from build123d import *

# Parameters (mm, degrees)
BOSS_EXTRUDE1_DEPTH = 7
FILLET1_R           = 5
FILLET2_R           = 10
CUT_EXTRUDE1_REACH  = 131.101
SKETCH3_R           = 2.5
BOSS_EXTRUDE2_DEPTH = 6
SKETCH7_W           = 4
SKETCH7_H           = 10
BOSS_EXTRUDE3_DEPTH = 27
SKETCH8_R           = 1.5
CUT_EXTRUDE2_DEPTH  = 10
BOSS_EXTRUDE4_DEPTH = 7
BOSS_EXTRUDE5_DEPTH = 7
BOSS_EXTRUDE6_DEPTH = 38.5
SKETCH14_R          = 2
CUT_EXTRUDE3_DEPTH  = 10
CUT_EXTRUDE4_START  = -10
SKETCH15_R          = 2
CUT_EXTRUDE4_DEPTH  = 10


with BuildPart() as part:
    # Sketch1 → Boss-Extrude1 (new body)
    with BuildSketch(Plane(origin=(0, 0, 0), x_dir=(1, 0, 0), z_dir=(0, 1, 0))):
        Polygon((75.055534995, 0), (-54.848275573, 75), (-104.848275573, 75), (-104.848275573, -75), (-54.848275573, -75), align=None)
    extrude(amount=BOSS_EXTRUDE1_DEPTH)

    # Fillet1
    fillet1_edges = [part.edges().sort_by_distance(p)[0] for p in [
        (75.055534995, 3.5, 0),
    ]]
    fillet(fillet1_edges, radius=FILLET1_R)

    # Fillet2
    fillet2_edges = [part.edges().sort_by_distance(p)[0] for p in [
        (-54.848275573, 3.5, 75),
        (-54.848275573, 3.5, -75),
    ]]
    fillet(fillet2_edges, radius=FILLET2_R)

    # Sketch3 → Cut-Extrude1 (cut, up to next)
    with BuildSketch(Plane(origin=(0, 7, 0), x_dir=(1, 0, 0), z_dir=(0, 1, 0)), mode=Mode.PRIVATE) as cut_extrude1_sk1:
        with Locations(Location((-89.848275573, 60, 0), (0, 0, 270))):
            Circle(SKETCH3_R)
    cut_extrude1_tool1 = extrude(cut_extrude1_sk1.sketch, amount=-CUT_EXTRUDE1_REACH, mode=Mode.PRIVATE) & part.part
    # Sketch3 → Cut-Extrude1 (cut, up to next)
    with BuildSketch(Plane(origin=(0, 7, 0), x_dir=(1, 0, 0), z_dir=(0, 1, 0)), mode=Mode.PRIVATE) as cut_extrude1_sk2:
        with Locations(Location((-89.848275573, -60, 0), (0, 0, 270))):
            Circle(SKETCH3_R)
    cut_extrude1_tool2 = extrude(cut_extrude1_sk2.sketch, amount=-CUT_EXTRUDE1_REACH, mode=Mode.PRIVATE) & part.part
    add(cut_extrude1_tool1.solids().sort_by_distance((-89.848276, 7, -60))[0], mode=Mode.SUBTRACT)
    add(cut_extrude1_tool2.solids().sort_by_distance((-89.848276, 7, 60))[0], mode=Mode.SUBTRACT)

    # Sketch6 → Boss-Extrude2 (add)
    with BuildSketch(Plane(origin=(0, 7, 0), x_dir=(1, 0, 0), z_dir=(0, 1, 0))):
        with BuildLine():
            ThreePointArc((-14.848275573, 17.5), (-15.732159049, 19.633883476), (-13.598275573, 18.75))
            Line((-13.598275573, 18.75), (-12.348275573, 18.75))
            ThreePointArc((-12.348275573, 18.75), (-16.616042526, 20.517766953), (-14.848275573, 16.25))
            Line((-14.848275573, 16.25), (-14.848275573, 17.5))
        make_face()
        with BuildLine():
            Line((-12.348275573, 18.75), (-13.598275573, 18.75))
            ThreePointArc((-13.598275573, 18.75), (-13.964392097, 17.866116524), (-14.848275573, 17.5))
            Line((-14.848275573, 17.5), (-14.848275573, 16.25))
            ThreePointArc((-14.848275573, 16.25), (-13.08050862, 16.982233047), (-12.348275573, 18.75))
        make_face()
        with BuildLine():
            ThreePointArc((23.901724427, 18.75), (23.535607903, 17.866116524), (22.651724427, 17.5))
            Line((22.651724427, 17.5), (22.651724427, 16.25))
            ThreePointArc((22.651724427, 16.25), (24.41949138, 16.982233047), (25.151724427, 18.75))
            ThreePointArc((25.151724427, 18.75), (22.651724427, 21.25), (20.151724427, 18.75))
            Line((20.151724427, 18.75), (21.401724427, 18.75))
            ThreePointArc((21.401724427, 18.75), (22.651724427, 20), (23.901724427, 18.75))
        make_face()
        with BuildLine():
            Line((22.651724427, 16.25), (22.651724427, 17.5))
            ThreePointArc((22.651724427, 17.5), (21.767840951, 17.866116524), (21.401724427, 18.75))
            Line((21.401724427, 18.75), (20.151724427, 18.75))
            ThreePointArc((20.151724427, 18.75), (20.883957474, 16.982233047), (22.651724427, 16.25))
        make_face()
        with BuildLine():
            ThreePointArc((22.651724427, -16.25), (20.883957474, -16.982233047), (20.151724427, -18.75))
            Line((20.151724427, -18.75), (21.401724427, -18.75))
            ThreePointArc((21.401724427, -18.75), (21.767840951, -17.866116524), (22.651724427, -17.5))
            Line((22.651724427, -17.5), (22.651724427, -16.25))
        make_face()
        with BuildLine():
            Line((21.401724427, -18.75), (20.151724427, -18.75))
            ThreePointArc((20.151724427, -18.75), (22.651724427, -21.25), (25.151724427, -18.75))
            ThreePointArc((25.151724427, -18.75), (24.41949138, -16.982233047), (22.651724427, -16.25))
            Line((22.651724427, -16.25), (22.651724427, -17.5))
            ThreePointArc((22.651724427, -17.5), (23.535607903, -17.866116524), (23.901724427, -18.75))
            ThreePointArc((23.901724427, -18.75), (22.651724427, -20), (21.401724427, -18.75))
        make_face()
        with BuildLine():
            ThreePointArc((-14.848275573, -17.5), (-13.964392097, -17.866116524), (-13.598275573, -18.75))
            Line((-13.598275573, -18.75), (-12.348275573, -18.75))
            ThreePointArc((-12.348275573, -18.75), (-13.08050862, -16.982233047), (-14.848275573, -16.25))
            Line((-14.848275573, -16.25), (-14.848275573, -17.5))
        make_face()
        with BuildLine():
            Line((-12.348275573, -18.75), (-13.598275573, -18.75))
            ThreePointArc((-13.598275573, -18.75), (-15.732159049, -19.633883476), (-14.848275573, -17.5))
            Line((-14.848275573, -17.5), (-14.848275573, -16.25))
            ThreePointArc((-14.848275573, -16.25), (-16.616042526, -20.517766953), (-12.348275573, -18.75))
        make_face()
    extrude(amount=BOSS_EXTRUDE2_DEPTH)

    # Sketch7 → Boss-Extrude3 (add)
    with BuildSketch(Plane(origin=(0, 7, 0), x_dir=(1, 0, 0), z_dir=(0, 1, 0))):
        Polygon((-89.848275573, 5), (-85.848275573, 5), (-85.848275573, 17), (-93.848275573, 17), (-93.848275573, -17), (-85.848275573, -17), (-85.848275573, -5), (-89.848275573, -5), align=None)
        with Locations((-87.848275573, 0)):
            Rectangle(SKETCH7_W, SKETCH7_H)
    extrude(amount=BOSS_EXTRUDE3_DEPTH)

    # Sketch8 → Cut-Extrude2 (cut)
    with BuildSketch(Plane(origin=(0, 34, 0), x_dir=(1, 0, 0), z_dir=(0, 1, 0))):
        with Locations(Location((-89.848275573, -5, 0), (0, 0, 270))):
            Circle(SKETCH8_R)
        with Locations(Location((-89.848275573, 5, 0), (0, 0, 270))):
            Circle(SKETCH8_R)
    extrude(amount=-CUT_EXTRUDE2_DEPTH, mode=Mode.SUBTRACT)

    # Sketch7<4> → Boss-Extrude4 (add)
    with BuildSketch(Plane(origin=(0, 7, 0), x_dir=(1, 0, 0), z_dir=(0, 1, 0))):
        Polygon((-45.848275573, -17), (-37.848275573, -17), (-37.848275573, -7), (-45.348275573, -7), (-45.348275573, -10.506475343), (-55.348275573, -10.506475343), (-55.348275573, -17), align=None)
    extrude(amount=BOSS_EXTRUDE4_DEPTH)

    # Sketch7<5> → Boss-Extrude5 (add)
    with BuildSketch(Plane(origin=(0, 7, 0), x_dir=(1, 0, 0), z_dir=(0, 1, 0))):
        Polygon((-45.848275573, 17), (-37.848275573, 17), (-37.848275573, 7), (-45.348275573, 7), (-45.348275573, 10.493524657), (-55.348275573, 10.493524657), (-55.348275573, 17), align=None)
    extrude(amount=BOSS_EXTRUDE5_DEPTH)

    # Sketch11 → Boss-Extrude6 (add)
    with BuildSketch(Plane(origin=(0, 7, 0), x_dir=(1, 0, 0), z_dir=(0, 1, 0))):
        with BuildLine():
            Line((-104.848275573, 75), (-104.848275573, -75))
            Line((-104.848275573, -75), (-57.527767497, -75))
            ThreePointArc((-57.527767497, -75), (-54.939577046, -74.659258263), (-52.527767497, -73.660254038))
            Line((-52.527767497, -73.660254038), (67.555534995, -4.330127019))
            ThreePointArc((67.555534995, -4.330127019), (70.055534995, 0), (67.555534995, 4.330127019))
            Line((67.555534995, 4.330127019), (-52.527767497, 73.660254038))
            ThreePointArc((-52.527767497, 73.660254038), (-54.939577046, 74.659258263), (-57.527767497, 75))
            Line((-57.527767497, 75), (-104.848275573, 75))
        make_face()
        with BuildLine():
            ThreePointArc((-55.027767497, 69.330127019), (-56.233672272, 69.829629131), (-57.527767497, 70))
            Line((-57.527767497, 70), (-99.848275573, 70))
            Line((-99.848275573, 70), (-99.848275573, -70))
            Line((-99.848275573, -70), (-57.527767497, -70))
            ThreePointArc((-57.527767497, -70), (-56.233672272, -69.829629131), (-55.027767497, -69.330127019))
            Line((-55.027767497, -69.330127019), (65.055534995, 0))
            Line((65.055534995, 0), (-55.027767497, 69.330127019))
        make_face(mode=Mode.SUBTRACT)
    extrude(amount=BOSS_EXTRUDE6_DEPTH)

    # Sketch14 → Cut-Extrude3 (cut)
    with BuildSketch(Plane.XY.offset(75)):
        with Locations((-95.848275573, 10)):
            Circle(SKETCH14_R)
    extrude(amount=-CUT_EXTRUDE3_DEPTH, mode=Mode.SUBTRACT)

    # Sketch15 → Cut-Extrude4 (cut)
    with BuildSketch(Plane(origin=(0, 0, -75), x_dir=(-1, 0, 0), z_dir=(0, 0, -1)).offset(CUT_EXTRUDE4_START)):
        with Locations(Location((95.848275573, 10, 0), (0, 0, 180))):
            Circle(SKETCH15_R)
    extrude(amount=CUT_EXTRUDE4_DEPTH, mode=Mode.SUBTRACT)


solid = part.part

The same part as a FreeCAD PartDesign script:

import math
import FreeCAD as App
import Part
import Sketcher
from FreeCAD import Vector
Q = App.Units.Quantity


def edges_at(feature, points):
    """Names of the edges that pass closest to the given points."""
    edges = feature.Shape.Edges
    near = lambda p: min(range(len(edges)), key=lambda i: edges[i].distToShape(Part.Vertex(*p))[0])
    return sorted({f"Edge{near(p) + 1}" for p in points})

doc = App.newDocument("Part")
body = doc.addObject("PartDesign::Body", "Body")

# Sketch on XZ plane
sketch1 = body.newObject("Sketcher::SketchObject", "Sketch")
sketch1.AttachmentSupport = (doc.getObject("XZ_Plane"), [""])
sketch1.MapMode = "FlatFace"
sketch1.addGeometry([
    Part.LineSegment(Vector(75, 0, 0), Vector(-55, -75, 0)),  # 0
    Part.LineSegment(Vector(-55, -75, 0), Vector(-105, -75, 0)),  # 1
    Part.LineSegment(Vector(-105, -75, 0), Vector(-105, 75, 0)),  # 2
    Part.LineSegment(Vector(-105, 75, 0), Vector(-55, 75, 0)),  # 3
    Part.LineSegment(Vector(-55, 75, 0), Vector(75, 0, 0)),  # 4
], False)
sketch1.addConstraint([
    Sketcher.Constraint("Coincident", 0, 2, 1, 1),
    Sketcher.Constraint("Coincident", 1, 2, 2, 1),
    Sketcher.Constraint("Coincident", 2, 2, 3, 1),
    Sketcher.Constraint("Coincident", 3, 2, 4, 1),
    Sketcher.Constraint("Coincident", 4, 2, 0, 1),
    Sketcher.Constraint("Horizontal", 1),
    Sketcher.Constraint("Vertical", 2),
    Sketcher.Constraint("Horizontal", 3),
    Sketcher.Constraint("Symmetric", 0, 2, 3, 2, -1),
    Sketcher.Constraint("PointOnObject", 4, 2, -1),
    Sketcher.Constraint("DistanceX", 1, 2, 1, 1, Q("50 mm")),
    Sketcher.Constraint("DistanceY", 2, 1, 2, 2, Q("150 mm")),
    Sketcher.Constraint("Angle", 0, Q("-150 deg")),
    Sketcher.Constraint("DistanceX", 0, 2, -1, 1, Q("54.848276 mm")),
])
pad1 = body.newObject("PartDesign::Pad", "Pad")
pad1.Profile = sketch1
pad1.Length = 7
pad1.Reversed = True
doc.recompute()

fillet = body.newObject("PartDesign::Fillet", "Fillet")
fillet.Base = (pad1, edges_at(pad1, [(75.056, 3.5, 0)]))
fillet.Radius = 5
doc.recompute()

fillet2 = body.newObject("PartDesign::Fillet", "Fillet001")
fillet2.Base = (fillet, edges_at(fillet, [(-54.848, 3.5, 75), (-54.848, 3.5, -75)]))
fillet2.Radius = 10

# Sketch on XZ plane
sketch2 = body.newObject("Sketcher::SketchObject", "Sketch001")
sketch2.AttachmentSupport = (doc.getObject("XZ_Plane"), [""])
sketch2.MapMode = "FlatFace"
sketch2.AttachmentOffset = App.Placement(Vector(0, 0, -7), App.Rotation())
sketch2.addGeometry(Part.Circle(Vector(-89.8, -60, 0), Vector(0, 0, 1), 2.5), False)
sketch2.addConstraint([
    Sketcher.Constraint("Diameter", 0, Q("5 mm")),
    Sketcher.Constraint("DistanceY", 0, 3, -1, 1, Q("60 mm")),
    Sketcher.Constraint("DistanceX", 0, 3, -1, 1, Q("89.848276 mm")),
])
pocket1 = body.newObject("PartDesign::Pocket", "Pocket")
pocket1.Profile = sketch2
pocket1.Type = "UpToFirst"
pocket1.Reversed = True

# Sketch on XZ plane
sketch3 = body.newObject("Sketcher::SketchObject", "Sketch002")
sketch3.AttachmentSupport = (doc.getObject("XZ_Plane"), [""])
sketch3.MapMode = "FlatFace"
sketch3.AttachmentOffset = App.Placement(Vector(0, 0, -7), App.Rotation())
sketch3.addGeometry(Part.Circle(Vector(-89.8, 60, 0), Vector(0, 0, 1), 2.5), False)
sketch3.addConstraint([
    Sketcher.Constraint("Diameter", 0, Q("5 mm")),
    Sketcher.Constraint("DistanceY", -1, 1, 0, 3, Q("60 mm")),
    Sketcher.Constraint("DistanceX", 0, 3, -1, 1, Q("89.848276 mm")),
])
pocket2 = body.newObject("PartDesign::Pocket", "Pocket001")
pocket2.Profile = sketch3
pocket2.Type = "UpToFirst"
pocket2.Reversed = True

# Sketch on XZ plane
sketch4 = body.newObject("Sketcher::SketchObject", "Sketch003")
sketch4.AttachmentSupport = (doc.getObject("XZ_Plane"), [""])
sketch4.MapMode = "FlatFace"
sketch4.AttachmentOffset = App.Placement(Vector(0, 0, -7), App.Rotation())
sketch4.addGeometry([
    Part.ArcOfCircle(Part.Circle(Vector(-14.8, -18.8, 0), Vector(0, 0, 1), 2.5), math.radians(90), math.radians(360)),  # 0
    Part.ArcOfCircle(Part.Circle(Vector(-14.8, -18.8, 0), Vector(0, 0, 1), 2.5), math.radians(0), math.radians(90)),  # 1
    Part.ArcOfCircle(Part.Circle(Vector(-14.8, -18.8, 0), Vector(0, 0, 1), 1.2), math.radians(90), math.radians(360)),  # 2
    Part.ArcOfCircle(Part.Circle(Vector(-14.8, -18.8, 0), Vector(0, 0, 1), 1.3), math.radians(0), math.radians(90)),  # 3
    Part.ArcOfCircle(Part.Circle(Vector(22.7, -18.8, 0), Vector(0, 0, 1), 2.5), math.radians(180), math.radians(360)),  # 4
    Part.ArcOfCircle(Part.Circle(Vector(22.7, -18.8, 0), Vector(0, 0, 1), 2.5), math.radians(90), math.radians(180)),  # 5
    Part.ArcOfCircle(Part.Circle(Vector(22.7, -18.8, 0), Vector(0, 0, 1), 2.5), math.radians(0), math.radians(90)),  # 6
    Part.ArcOfCircle(Part.Circle(Vector(22.7, -18.8, 0), Vector(0, 0, 1), 1.3), math.radians(0), math.radians(90)),  # 7
    Part.ArcOfCircle(Part.Circle(Vector(22.7, -18.8, 0), Vector(0, 0, 1), 1.3), math.radians(90), math.radians(180)),  # 8
    Part.ArcOfCircle(Part.Circle(Vector(22.7, -18.8, 0), Vector(0, 0, 1), 1.2), math.radians(180), math.radians(360)),  # 9
    Part.ArcOfCircle(Part.Circle(Vector(22.7, 18.8, 0), Vector(0, 0, 1), 2.5), math.radians(180), math.radians(270)),  # 10
    Part.ArcOfCircle(Part.Circle(Vector(22.7, 18.8, 0), Vector(0, 0, 1), 2.5), math.radians(0), math.radians(180)),  # 11
    Part.ArcOfCircle(Part.Circle(Vector(22.7, 18.8, 0), Vector(0, 0, 1), 2.5), math.radians(-90), math.radians(0)),  # 12
    Part.ArcOfCircle(Part.Circle(Vector(22.7, 18.8, 0), Vector(0, 0, 1), 1.3), math.radians(-180), math.radians(-90)),  # 13
    Part.ArcOfCircle(Part.Circle(Vector(22.7, 18.8, 0), Vector(0, 0, 1), 1.3), math.radians(-90), math.radians(0)),  # 14
    Part.ArcOfCircle(Part.Circle(Vector(22.7, 18.8, 0), Vector(0, 0, 1), 1.2), math.radians(0), math.radians(180)),  # 15
    Part.ArcOfCircle(Part.Circle(Vector(-14.8, 18.8, 0), Vector(0, 0, 1), 2.5), math.radians(-90), math.radians(0)),  # 16
    Part.ArcOfCircle(Part.Circle(Vector(-14.8, 18.8, 0), Vector(0, 0, 1), 2.5), math.radians(0), math.radians(270)),  # 17
    Part.ArcOfCircle(Part.Circle(Vector(-14.8, 18.8, 0), Vector(0, 0, 1), 1.3), math.radians(-90), math.radians(0)),  # 18
    Part.ArcOfCircle(Part.Circle(Vector(-14.8, 18.8, 0), Vector(0, 0, 1), 1.2), math.radians(0), math.radians(270)),  # 19
], False)
sketch4.addConstraint([
    Sketcher.Constraint("Tangent", 0, 1, 1, 2),
    Sketcher.Constraint("Coincident", 1, 1, 0, 2),
    Sketcher.Constraint("Tangent", 2, 1, 3, 2),
    Sketcher.Constraint("Coincident", 3, 1, 2, 2),
    Sketcher.Constraint("Tangent", 4, 1, 5, 2),
    Sketcher.Constraint("Tangent", 5, 1, 6, 2),
    Sketcher.Constraint("Tangent", 6, 1, 4, 2),
    Sketcher.Constraint("Tangent", 7, 2, 8, 1),
    Sketcher.Constraint("Tangent", 8, 2, 9, 1),
    Sketcher.Constraint("Tangent", 9, 2, 7, 1),
    Sketcher.Constraint("Tangent", 10, 1, 11, 2),
    Sketcher.Constraint("Tangent", 11, 1, 12, 2),
    Sketcher.Constraint("Tangent", 12, 1, 10, 2),
    Sketcher.Constraint("Tangent", 13, 2, 14, 1),
    Sketcher.Constraint("Tangent", 14, 2, 15, 1),
    Sketcher.Constraint("Tangent", 15, 2, 13, 1),
    Sketcher.Constraint("Tangent", 16, 1, 17, 2),
    Sketcher.Constraint("Coincident", 17, 1, 16, 2),
    Sketcher.Constraint("Tangent", 18, 1, 19, 2),
    Sketcher.Constraint("Coincident", 19, 1, 18, 2),
    Sketcher.Constraint("Coincident", 2, 3, 0, 3),
    Sketcher.Constraint("Coincident", 7, 3, 4, 3),
    Sketcher.Constraint("Coincident", 13, 3, 10, 3),
    Sketcher.Constraint("Coincident", 18, 3, 16, 3),
    Sketcher.Constraint("Equal", 1, 4),
    Sketcher.Constraint("Equal", 3, 7),
    Sketcher.Constraint("Equal", 6, 10),
    Sketcher.Constraint("Equal", 9, 13),
    Sketcher.Constraint("Equal", 12, 16),
    Sketcher.Constraint("Equal", 15, 18),
    Sketcher.Constraint("Symmetric", 4, 3, 10, 3, -1),
    Sketcher.Constraint("Symmetric", 0, 3, 16, 3, -1),
    Sketcher.Constraint("Horizontal", 3, 3, 4, 3),
    Sketcher.Constraint("Horizontal", 9, 3, 1, 1),
    Sketcher.Constraint("Horizontal", 1, 1, 3, 1),
    Sketcher.Constraint("Horizontal", 3, 1, 4, 1),
    Sketcher.Constraint("Horizontal", 4, 1, 6, 1),
    Sketcher.Constraint("Horizontal", 6, 1, 8, 2),
    Sketcher.Constraint("Horizontal", 8, 2, 9, 2),
    Sketcher.Constraint("Horizontal", 19, 3, 10, 1),
    Sketcher.Constraint("Horizontal", 10, 1, 11, 1),
    Sketcher.Constraint("Horizontal", 11, 1, 14, 2),
    Sketcher.Constraint("Horizontal", 14, 2, 15, 2),
    Sketcher.Constraint("Horizontal", 15, 2, 17, 1),
    Sketcher.Constraint("Horizontal", 17, 1, 19, 1),
    Sketcher.Constraint("Vertical", 19, 3, 0, 1),
    Sketcher.Constraint("Vertical", 0, 1, 2, 1),
    Sketcher.Constraint("Vertical", 15, 3, 5, 1),
    Sketcher.Constraint("Vertical", 5, 1, 7, 2),
    Sketcher.Constraint("Vertical", 7, 2, 12, 1),
    Sketcher.Constraint("Vertical", 12, 1, 13, 2),
    Sketcher.Constraint("Vertical", 2, 1, 16, 1),
    Sketcher.Constraint("Vertical", 16, 1, 18, 1),
    Sketcher.Constraint("Radius", 0, Q("2.5 mm")),
    Sketcher.Constraint("Radius", 2, Q("1.25 mm")),
    Sketcher.Constraint("DistanceY", 0, 1, 16, 3, Q("35 mm")),
    Sketcher.Constraint("DistanceX", 0, 3, 4, 3, Q("37.5 mm")),
    Sketcher.Constraint("DistanceX", 0, 3, -1, 1, Q("14.848276 mm")),
])
pad2 = body.newObject("PartDesign::Pad", "Pad001")
pad2.Profile = sketch4
pad2.Length = 6
pad2.Reversed = True

# Sketch on XZ plane
sketch5 = body.newObject("Sketcher::SketchObject", "Sketch004")
sketch5.AttachmentSupport = (doc.getObject("XZ_Plane"), [""])
sketch5.MapMode = "FlatFace"
sketch5.AttachmentOffset = App.Placement(Vector(0, 0, -7), App.Rotation())
sketch5.addGeometry([
    Part.LineSegment(Vector(-86, -17, 0), Vector(-94, -17, 0)),
    Part.LineSegment(Vector(-94, -17, 0), Vector(-94, 17, 0)),
    Part.LineSegment(Vector(-94, 17, 0), Vector(-86, 17, 0)),
    Part.LineSegment(Vector(-86, 17, 0), Vector(-86, -17, 0)),
], False)
sketch5.addConstraint([
    Sketcher.Constraint("Coincident", 0, 2, 1, 1),
    Sketcher.Constraint("Coincident", 1, 2, 2, 1),
    Sketcher.Constraint("Coincident", 2, 2, 3, 1),
    Sketcher.Constraint("Coincident", 3, 2, 0, 1),
    Sketcher.Constraint("Horizontal", 0),
    Sketcher.Constraint("Vertical", 1),
    Sketcher.Constraint("Horizontal", 2),
    Sketcher.Constraint("Vertical", 3),
    Sketcher.Constraint("DistanceX", 0, 2, 0, 1, Q("8 mm")),
    Sketcher.Constraint("DistanceY", 1, 1, 1, 2, Q("34 mm")),
    Sketcher.Constraint("DistanceY", 0, 2, -1, 1, Q("17 mm")),
    Sketcher.Constraint("DistanceX", 0, 2, -1, 1, Q("93.848276 mm")),
])
pad3 = body.newObject("PartDesign::Pad", "Pad002")
pad3.Profile = sketch5
pad3.Length = 27
pad3.Reversed = True

# Sketch on XZ plane
sketch6 = body.newObject("Sketcher::SketchObject", "Sketch005")
sketch6.AttachmentSupport = (doc.getObject("XZ_Plane"), [""])
sketch6.MapMode = "FlatFace"
sketch6.AttachmentOffset = App.Placement(Vector(0, 0, -34), App.Rotation())
sketch6.addGeometry([
    Part.Circle(Vector(-89.8, 5, 0), Vector(0, 0, 1), 1.5),
    Part.Circle(Vector(-89.8, -5, 0), Vector(0, 0, 1), 1.5),
], False)
sketch6.addConstraint([
    Sketcher.Constraint("Equal", 0, 1),
    Sketcher.Constraint("Symmetric", 0, 3, 1, 3, -1),
    Sketcher.Constraint("Diameter", 0, Q("3 mm")),
    Sketcher.Constraint("DistanceY", -1, 1, 0, 3, Q("5 mm")),
    Sketcher.Constraint("DistanceX", 0, 3, -1, 1, Q("89.848276 mm")),
])
pocket3 = body.newObject("PartDesign::Pocket", "Pocket002")
pocket3.Profile = sketch6
pocket3.Length = 10
pocket3.Reversed = True

# Sketch on XZ plane
sketch7 = body.newObject("Sketcher::SketchObject", "Sketch006")
sketch7.AttachmentSupport = (doc.getObject("XZ_Plane"), [""])
sketch7.MapMode = "FlatFace"
sketch7.AttachmentOffset = App.Placement(Vector(0, 0, -7), App.Rotation())
sketch7.addGeometry([
    Part.LineSegment(Vector(-37.8, 17, 0), Vector(-37.8, 7, 0)),  # 0
    Part.LineSegment(Vector(-37.8, 7, 0), Vector(-45.3, 7, 0)),  # 1
    Part.LineSegment(Vector(-45.3, 7, 0), Vector(-45.3, 10.5, 0)),  # 2
    Part.LineSegment(Vector(-45.3, 10.5, 0), Vector(-55.3, 10.5, 0)),  # 3
    Part.LineSegment(Vector(-55.3, 10.5, 0), Vector(-55.3, 17, 0)),  # 4
    Part.LineSegment(Vector(-55.3, 17, 0), Vector(-37.8, 17, 0)),  # 5
], False)
sketch7.addConstraint([
    Sketcher.Constraint("Coincident", 0, 2, 1, 1),
    Sketcher.Constraint("Coincident", 1, 2, 2, 1),
    Sketcher.Constraint("Coincident", 2, 2, 3, 1),
    Sketcher.Constraint("Coincident", 3, 2, 4, 1),
    Sketcher.Constraint("Coincident", 4, 2, 5, 1),
    Sketcher.Constraint("Coincident", 5, 2, 0, 1),
    Sketcher.Constraint("Vertical", 0),
    Sketcher.Constraint("Horizontal", 1),
    Sketcher.Constraint("Vertical", 2),
    Sketcher.Constraint("Horizontal", 3),
    Sketcher.Constraint("Vertical", 4),
    Sketcher.Constraint("Horizontal", 5),
    Sketcher.Constraint("Equal", 3, 0),
    Sketcher.Constraint("DistanceX", 3, 2, 3, 1, Q("10 mm")),
    Sketcher.Constraint("DistanceX", 1, 2, 1, 1, Q("7.5 mm")),
    Sketcher.Constraint("DistanceY", -1, 1, 0, 2, Q("7 mm")),
    Sketcher.Constraint("DistanceY", 2, 1, 2, 2, Q("3.506475 mm")),
    Sketcher.Constraint("DistanceX", 0, 2, -1, 1, Q("37.848276 mm")),
])
pad4 = body.newObject("PartDesign::Pad", "Pad003")
pad4.Profile = sketch7
pad4.Length = 7
pad4.Reversed = True

# Sketch on XZ plane
sketch8 = body.newObject("Sketcher::SketchObject", "Sketch007")
sketch8.AttachmentSupport = (doc.getObject("XZ_Plane"), [""])
sketch8.MapMode = "FlatFace"
sketch8.AttachmentOffset = App.Placement(Vector(0, 0, -7), App.Rotation())
sketch8.addGeometry([
    Part.LineSegment(Vector(-37.8, -17, 0), Vector(-55.3, -17, 0)),  # 0
    Part.LineSegment(Vector(-55.3, -17, 0), Vector(-55.3, -10.5, 0)),  # 1
    Part.LineSegment(Vector(-55.3, -10.5, 0), Vector(-45.3, -10.5, 0)),  # 2
    Part.LineSegment(Vector(-45.3, -10.5, 0), Vector(-45.3, -7, 0)),  # 3
    Part.LineSegment(Vector(-45.3, -7, 0), Vector(-37.8, -7, 0)),  # 4
    Part.LineSegment(Vector(-37.8, -7, 0), Vector(-37.8, -17, 0)),  # 5
], False)
sketch8.addConstraint([
    Sketcher.Constraint("Coincident", 0, 2, 1, 1),
    Sketcher.Constraint("Coincident", 1, 2, 2, 1),
    Sketcher.Constraint("Coincident", 2, 2, 3, 1),
    Sketcher.Constraint("Coincident", 3, 2, 4, 1),
    Sketcher.Constraint("Coincident", 4, 2, 5, 1),
    Sketcher.Constraint("Coincident", 5, 2, 0, 1),
    Sketcher.Constraint("Horizontal", 0),
    Sketcher.Constraint("Vertical", 1),
    Sketcher.Constraint("Horizontal", 2),
    Sketcher.Constraint("Vertical", 3),
    Sketcher.Constraint("Horizontal", 4),
    Sketcher.Constraint("Vertical", 5),
    Sketcher.Constraint("Equal", 2, 5),
    Sketcher.Constraint("DistanceX", 2, 1, 2, 2, Q("10 mm")),
    Sketcher.Constraint("DistanceX", 0, 2, 0, 1, Q("17.5 mm")),
    Sketcher.Constraint("DistanceY", 0, 2, -1, 1, Q("17 mm")),
    Sketcher.Constraint("DistanceY", 1, 1, 1, 2, Q("6.506475 mm")),
    Sketcher.Constraint("DistanceX", 0, 2, -1, 1, Q("55.348276 mm")),
])
pad5 = body.newObject("PartDesign::Pad", "Pad004")
pad5.Profile = sketch8
pad5.Length = 7
pad5.Reversed = True

# Sketch on XZ plane
sketch9 = body.newObject("Sketcher::SketchObject", "Sketch008")
sketch9.AttachmentSupport = (doc.getObject("XZ_Plane"), [""])
sketch9.MapMode = "FlatFace"
sketch9.AttachmentOffset = App.Placement(Vector(0, 0, -7), App.Rotation())
sketch9.addGeometry([
    Part.LineSegment(Vector(-104.8, -75, 0), Vector(-104.8, 75, 0)),  # 0
    Part.LineSegment(Vector(-104.8, 75, 0), Vector(-57.5, 75, 0)),  # 1
    Part.ArcOfCircle(Part.Circle(Vector(-57.5, 65, 0), Vector(0, 0, 1), 10), math.radians(60), math.radians(90)),  # 2
    Part.LineSegment(Vector(-52.5, 73.7, 0), Vector(67.6, 4.3, 0)),  # 3
    Part.ArcOfCircle(Part.Circle(Vector(65.1, 0, 0), Vector(0, 0, 1), 5), math.radians(-60), math.radians(60)),  # 4
    Part.LineSegment(Vector(67.6, -4.3, 0), Vector(-52.5, -73.7, 0)),  # 5
    Part.ArcOfCircle(Part.Circle(Vector(-57.5, -65, 0), Vector(0, 0, 1), 10), math.radians(-90), math.radians(-60)),  # 6
    Part.LineSegment(Vector(-57.5, -75, 0), Vector(-104.8, -75, 0)),  # 7
    Part.ArcOfCircle(Part.Circle(Vector(-57.5, -65, 0), Vector(0, 0, 1), 5), math.radians(-90), math.radians(-60)),  # 8
    Part.LineSegment(Vector(-55, -69.3, 0), Vector(65.1, 0, 0)),  # 9
    Part.LineSegment(Vector(65.1, 0, 0), Vector(-55, 69.3, 0)),  # 10
    Part.ArcOfCircle(Part.Circle(Vector(-57.5, 65, 0), Vector(0, 0, 1), 5), math.radians(60), math.radians(90)),  # 11
    Part.LineSegment(Vector(-57.5, 70, 0), Vector(-99.8, 70, 0)),  # 12
    Part.LineSegment(Vector(-99.8, 70, 0), Vector(-99.8, -70, 0)),  # 13
    Part.LineSegment(Vector(-99.8, -70, 0), Vector(-57.5, -70, 0)),  # 14
], False)
sketch9.addConstraint([
    Sketcher.Constraint("Coincident", 0, 2, 1, 1),
    Sketcher.Constraint("Tangent", 1, 2, 2, 2),
    Sketcher.Constraint("Tangent", 2, 1, 3, 1),
    Sketcher.Constraint("Tangent", 3, 2, 4, 2),
    Sketcher.Constraint("Tangent", 4, 1, 5, 1),
    Sketcher.Constraint("Tangent", 5, 2, 6, 2),
    Sketcher.Constraint("Tangent", 6, 1, 7, 1),
    Sketcher.Constraint("Coincident", 7, 2, 0, 1),
    Sketcher.Constraint("Tangent", 8, 2, 9, 1),
    Sketcher.Constraint("Coincident", 9, 2, 10, 1),
    Sketcher.Constraint("Tangent", 10, 2, 11, 1),
    Sketcher.Constraint("Tangent", 11, 2, 12, 1),
    Sketcher.Constraint("Coincident", 12, 2, 13, 1),
    Sketcher.Constraint("Coincident", 13, 2, 14, 1),
    Sketcher.Constraint("Tangent", 14, 2, 8, 1),
    Sketcher.Constraint("Vertical", 0),
    Sketcher.Constraint("Horizontal", 1),
    Sketcher.Constraint("Horizontal", 7),
    Sketcher.Constraint("Horizontal", 12),
    Sketcher.Constraint("Vertical", 13),
    Sketcher.Constraint("Horizontal", 14),
    Sketcher.Constraint("Coincident", 8, 3, 6, 3),
    Sketcher.Constraint("Coincident", 11, 3, 2, 3),
    Sketcher.Constraint("Coincident", 9, 2, 4, 3),
    Sketcher.Constraint("Equal", 2, 6),
    Sketcher.Constraint("Equal", 4, 8),
    Sketcher.Constraint("Equal", 8, 11),
    Sketcher.Constraint("Symmetric", 2, 3, 6, 3, -1),
    Sketcher.Constraint("PointOnObject", 4, 3, -1),
    Sketcher.Constraint("Parallel", 5, 9),
    Sketcher.Constraint("Radius", 2, Q("10 mm")),
    Sketcher.Constraint("DistanceY", 0, 1, 0, 2, Q("150 mm")),
    Sketcher.Constraint("Angle", 3, Q("-30 deg")),
    Sketcher.Constraint("DistanceX", 0, 2, 12, 2, Q("5 mm")),
    Sketcher.Constraint("DistanceX", 1, 1, 1, 2, Q("47.320508 mm")),
    Sketcher.Constraint("DistanceX", 2, 3, -1, 1, Q("57.527767 mm")),
])
pad6 = body.newObject("PartDesign::Pad", "Pad005")
pad6.Profile = sketch9
pad6.Length = 38.5
pad6.Reversed = True

# Sketch on XY plane
sketch10 = body.newObject("Sketcher::SketchObject", "Sketch009")
sketch10.AttachmentSupport = (doc.getObject("XY_Plane"), [""])
sketch10.MapMode = "FlatFace"
sketch10.AttachmentOffset = App.Placement(Vector(0, 0, 75), App.Rotation())
sketch10.addGeometry(Part.Circle(Vector(-95.8, 10, 0), Vector(0, 0, 1), 2), False)
sketch10.addConstraint([
    Sketcher.Constraint("Diameter", 0, Q("4 mm")),
    Sketcher.Constraint("DistanceY", -1, 1, 0, 3, Q("10 mm")),
    Sketcher.Constraint("DistanceX", 0, 3, -1, 1, Q("95.848276 mm")),
])
pocket4 = body.newObject("PartDesign::Pocket", "Pocket003")
pocket4.Profile = sketch10
pocket4.Length = 10

# Sketch on XY plane
sketch11 = body.newObject("Sketcher::SketchObject", "Sketch010")
sketch11.AttachmentSupport = (doc.getObject("XY_Plane"), [""])
sketch11.MapMode = "FlatFace"
sketch11.AttachmentOffset = App.Placement(Vector(0, 0, -65), App.Rotation())
sketch11.addGeometry(Part.Circle(Vector(-95.8, 10, 0), Vector(0, 0, 1), 2), False)
sketch11.addConstraint([
    Sketcher.Constraint("Diameter", 0, Q("4 mm")),
    Sketcher.Constraint("DistanceY", -1, 1, 0, 3, Q("10 mm")),
    Sketcher.Constraint("DistanceX", 0, 3, -1, 1, Q("95.848276 mm")),
])
pocket5 = body.newObject("PartDesign::Pocket", "Pocket004")
pocket5.Profile = sketch11
pocket5.Length = 10

doc.recompute()
